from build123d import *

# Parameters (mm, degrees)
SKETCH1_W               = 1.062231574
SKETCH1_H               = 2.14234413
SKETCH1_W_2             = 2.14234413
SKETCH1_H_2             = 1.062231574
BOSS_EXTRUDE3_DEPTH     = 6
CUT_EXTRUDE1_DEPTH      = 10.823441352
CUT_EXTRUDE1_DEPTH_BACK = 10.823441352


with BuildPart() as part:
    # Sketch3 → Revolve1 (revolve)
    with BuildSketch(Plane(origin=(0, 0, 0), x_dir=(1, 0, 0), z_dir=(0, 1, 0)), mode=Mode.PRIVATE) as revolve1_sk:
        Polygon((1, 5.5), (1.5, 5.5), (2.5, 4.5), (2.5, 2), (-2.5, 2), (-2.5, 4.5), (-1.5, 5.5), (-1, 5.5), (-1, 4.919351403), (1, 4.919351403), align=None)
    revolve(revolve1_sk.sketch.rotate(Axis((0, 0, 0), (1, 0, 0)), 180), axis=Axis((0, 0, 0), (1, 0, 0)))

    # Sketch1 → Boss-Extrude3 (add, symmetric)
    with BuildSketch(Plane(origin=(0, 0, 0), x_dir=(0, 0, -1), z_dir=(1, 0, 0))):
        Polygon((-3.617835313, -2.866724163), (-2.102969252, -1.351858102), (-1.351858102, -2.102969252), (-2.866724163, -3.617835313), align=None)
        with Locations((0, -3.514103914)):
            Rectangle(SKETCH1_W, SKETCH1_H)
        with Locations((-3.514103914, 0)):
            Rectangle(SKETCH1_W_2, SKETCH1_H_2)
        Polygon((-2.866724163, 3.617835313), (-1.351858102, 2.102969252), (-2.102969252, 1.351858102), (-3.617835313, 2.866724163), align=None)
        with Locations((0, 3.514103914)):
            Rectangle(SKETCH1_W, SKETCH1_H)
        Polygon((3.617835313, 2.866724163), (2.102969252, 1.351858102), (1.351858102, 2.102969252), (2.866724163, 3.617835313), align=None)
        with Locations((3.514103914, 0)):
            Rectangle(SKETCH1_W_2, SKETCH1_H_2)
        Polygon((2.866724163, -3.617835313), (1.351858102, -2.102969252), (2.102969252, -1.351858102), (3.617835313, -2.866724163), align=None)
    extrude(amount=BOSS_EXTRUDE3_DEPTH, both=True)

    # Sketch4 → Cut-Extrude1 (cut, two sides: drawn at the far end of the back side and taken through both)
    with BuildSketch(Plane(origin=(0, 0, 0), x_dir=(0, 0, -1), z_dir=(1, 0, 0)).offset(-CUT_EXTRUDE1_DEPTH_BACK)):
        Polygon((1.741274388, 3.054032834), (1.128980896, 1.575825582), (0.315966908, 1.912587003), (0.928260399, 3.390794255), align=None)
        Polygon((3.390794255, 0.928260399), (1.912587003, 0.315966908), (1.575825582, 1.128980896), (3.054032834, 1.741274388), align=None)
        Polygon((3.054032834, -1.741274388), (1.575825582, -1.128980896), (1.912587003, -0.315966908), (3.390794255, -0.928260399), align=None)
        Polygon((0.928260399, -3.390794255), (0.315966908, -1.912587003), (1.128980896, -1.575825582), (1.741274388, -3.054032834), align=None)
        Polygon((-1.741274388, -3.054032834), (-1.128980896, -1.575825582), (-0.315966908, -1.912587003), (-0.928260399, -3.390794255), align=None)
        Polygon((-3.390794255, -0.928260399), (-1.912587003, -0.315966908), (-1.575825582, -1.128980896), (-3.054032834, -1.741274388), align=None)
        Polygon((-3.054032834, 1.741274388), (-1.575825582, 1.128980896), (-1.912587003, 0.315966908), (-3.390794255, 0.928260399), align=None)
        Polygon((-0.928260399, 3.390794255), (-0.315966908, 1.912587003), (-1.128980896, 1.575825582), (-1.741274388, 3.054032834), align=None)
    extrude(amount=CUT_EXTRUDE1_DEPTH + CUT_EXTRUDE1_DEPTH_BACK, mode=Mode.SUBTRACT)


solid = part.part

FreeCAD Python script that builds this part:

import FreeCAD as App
import Part
import Sketcher
Q = App.Units.Quantity

doc = App.newDocument("Part")
body = doc.addObject("PartDesign::Body", "Body")

# Sketch on XZ plane
sketch1 = body.newObject("Sketcher::SketchObject", "Sketch")
sketch1.AttachmentSupport = (doc.getObject("XZ_Plane"), [""])
sketch1.MapMode = "FlatFace"
sketch1.addGeometry(Part.LineSegment(App.Vector(1.5, -5.5, 0), App.Vector(1, -5.5, 0)), False)
sketch1.addGeometry(Part.LineSegment(App.Vector(1, -5.5, 0), App.Vector(1, -4.919351, 0)), False)
sketch1.addGeometry(Part.LineSegment(App.Vector(1, -4.919351, 0), App.Vector(-1, -4.919351, 0)), False)
sketch1.addGeometry(Part.LineSegment(App.Vector(-1, -4.919351, 0), App.Vector(-1, -5.5, 0)), False)
sketch1.addGeometry(Part.LineSegment(App.Vector(-1, -5.5, 0), App.Vector(-1.5, -5.5, 0)), False)
sketch1.addGeometry(Part.LineSegment(App.Vector(-1.5, -5.5, 0), App.Vector(-2.5, -4.5, 0)), False)
sketch1.addGeometry(Part.LineSegment(App.Vector(-2.5, -4.5, 0), App.Vector(-2.5, -2, 0)), False)
sketch1.addGeometry(Part.LineSegment(App.Vector(-2.5, -2, 0), App.Vector(2.5, -2, 0)), False)
sketch1.addGeometry(Part.LineSegment(App.Vector(2.5, -2, 0), App.Vector(2.5, -4.5, 0)), False)
sketch1.addGeometry(Part.LineSegment(App.Vector(2.5, -4.5, 0), App.Vector(1.5, -5.5, 0)), False)
sketch1.addConstraint(Sketcher.Constraint("Coincident", 0, 2, 1, 1))
sketch1.addConstraint(Sketcher.Constraint("Coincident", 1, 2, 2, 1))
sketch1.addConstraint(Sketcher.Constraint("Coincident", 2, 2, 3, 1))
sketch1.addConstraint(Sketcher.Constraint("Coincident", 3, 2, 4, 1))
sketch1.addConstraint(Sketcher.Constraint("Coincident", 4, 2, 5, 1))
sketch1.addConstraint(Sketcher.Constraint("Coincident", 5, 2, 6, 1))
sketch1.addConstraint(Sketcher.Constraint("Coincident", 6, 2, 7, 1))
sketch1.addConstraint(Sketcher.Constraint("Coincident", 7, 2, 8, 1))
sketch1.addConstraint(Sketcher.Constraint("Coincident", 8, 2, 9, 1))
sketch1.addConstraint(Sketcher.Constraint("Coincident", 9, 2, 0, 1))
sketch1.addConstraint(Sketcher.Constraint("Horizontal", 0))
sketch1.addConstraint(Sketcher.Constraint("Vertical", 1))
sketch1.addConstraint(Sketcher.Constraint("Horizontal", 2))
sketch1.addConstraint(Sketcher.Constraint("Vertical", 3))
sketch1.addConstraint(Sketcher.Constraint("Horizontal", 4))
sketch1.addConstraint(Sketcher.Constraint("Vertical", 6))
sketch1.addConstraint(Sketcher.Constraint("Horizontal", 7))
sketch1.addConstraint(Sketcher.Constraint("Vertical", 8))
sketch1.addConstraint(Sketcher.Constraint("Symmetric", 0, 2, 3, 2, -2))
sketch1.addConstraint(Sketcher.Constraint("Symmetric", 5, 2, 8, 2, -2))
sketch1.addConstraint(Sketcher.Constraint("Perpendicular", 5, 9))
sketch1.addConstraint(Sketcher.Constraint("Equal", 0, 4))
sketch1.addConstraint(Sketcher.Constraint("DistanceX", 2, 2, 2, 1, 2.0))
sketch1.addConstraint(Sketcher.Constraint("DistanceX", 7, 1, 7, 2, 5.0))
sketch1.addConstraint(Sketcher.Constraint("DistanceX", 0, 2, 0, 1, 0.5))
sketch1.addConstraint(Sketcher.Constraint("DistanceY", 6, 1, 6, 2, 2.5))
sketch1.addConstraint(Sketcher.Constraint("DistanceY", 6, 2, -1, 1, 2.0))
sketch1.addConstraint(Sketcher.Constraint("DistanceY", 1, 1, 1, 2, 0.580649))
revolution = body.newObject("PartDesign::Revolution", "Revolution")
revolution.Profile = sketch1
revolution.ReferenceAxis = (sketch1, ["H_Axis"])
revolution.Angle = 360

# Sketch on YZ plane
sketch2 = body.newObject("Sketcher::SketchObject", "Sketch001")
sketch2.AttachmentSupport = (doc.getObject("YZ_Plane"), [""])
sketch2.MapMode = "FlatFace"
sketch2.addGeometry(Part.LineSegment(App.Vector(-1.351858, 2.102969, 0), App.Vector(-2.866724, 3.617835, 0)), False)
sketch2.addGeometry(Part.LineSegment(App.Vector(-2.866724, 3.617835, 0), App.Vector(-3.617835, 2.866724, 0)), False)
sketch2.addGeometry(Part.LineSegment(App.Vector(-3.617835, 2.866724, 0), App.Vector(-2.102969, 1.351858, 0)), False)
sketch2.addGeometry(Part.LineSegment(App.Vector(-2.102969, 1.351858, 0), App.Vector(-1.351858, 2.102969, 0)), False)
sketch2.addGeometry(Part.LineSegment(App.Vector(-2.442932, 0.531116, 0), App.Vector(-4.585276, 0.531116, 0)), False)
sketch2.addGeometry(Part.LineSegment(App.Vector(-4.585276, 0.531116, 0), App.Vector(-4.585276, -0.531116, 0)), False)
sketch2.addGeometry(Part.LineSegment(App.Vector(-4.585276, -0.531116, 0), App.Vector(-2.442932, -0.531116, 0)), False)
sketch2.addGeometry(Part.LineSegment(App.Vector(-2.442932, -0.531116, 0), App.Vector(-2.442932, 0.531116, 0)), False)
sketch2.addGeometry(Part.LineSegment(App.Vector(0.531116, 4.585276, 0), App.Vector(-0.531116, 4.585276, 0)), False)
sketch2.addGeometry(Part.LineSegment(App.Vector(-0.531116, 4.585276, 0), App.Vector(-0.531116, 2.442932, 0)), False)
sketch2.addGeometry(Part.LineSegment(App.Vector(-0.531116, 2.442932, 0), App.Vector(0.531116, 2.442932, 0)), False)
sketch2.addGeometry(Part.LineSegment(App.Vector(0.531116, 2.442932, 0), App.Vector(0.531116, 4.585276, 0)), False)
sketch2.addGeometry(Part.LineSegment(App.Vector(2.102969, 1.351858, 0), App.Vector(3.617835, 2.866724, 0)), False)
sketch2.addGeometry(Part.LineSegment(App.Vector(3.617835, 2.866724, 0), App.Vector(2.866724, 3.617835, 0)), False)
sketch2.addGeometry(Part.LineSegment(App.Vector(2.866724, 3.617835, 0), App.Vector(1.351858, 2.102969, 0)), False)
sketch2.addGeometry(Part.LineSegment(App.Vector(1.351858, 2.102969, 0), App.Vector(2.102969, 1.351858, 0)), False)
sketch2.addGeometry(Part.LineSegment(App.Vector(4.585276, 0.531116, 0), App.Vector(2.442932, 0.531116, 0)), False)
sketch2.addGeometry(Part.LineSegment(App.Vector(2.442932, 0.531116, 0), App.Vector(2.442932, -0.531116, 0)), False)
sketch2.addGeometry(Part.LineSegment(App.Vector(2.442932, -0.531116, 0), App.Vector(4.585276, -0.531116, 0)), False)
sketch2.addGeometry(Part.LineSegment(App.Vector(4.585276, -0.531116, 0), App.Vector(4.585276, 0.531116, 0)), False)
sketch2.addGeometry(Part.LineSegment(App.Vector(1.351858, -2.102969, 0), App.Vector(2.866724, -3.617835, 0)), False)
sketch2.addGeometry(Part.LineSegment(App.Vector(2.866724, -3.617835, 0), App.Vector(3.617835, -2.866724, 0)), False)
sketch2.addGeometry(Part.LineSegment(App.Vector(3.617835, -2.866724, 0), App.Vector(2.102969, -1.351858, 0)), False)
sketch2.addGeometry(Part.LineSegment(App.Vector(2.102969, -1.351858, 0), App.Vector(1.351858, -2.102969, 0)), False)
sketch2.addGeometry(Part.LineSegment(App.Vector(0.531116, -2.442932, 0), App.Vector(-0.531116, -2.442932, 0)), False)
sketch2.addGeometry(Part.LineSegment(App.Vector(-0.531116, -2.442932, 0), App.Vector(-0.531116, -4.585276, 0)), False)
sketch2.addGeometry(Part.LineSegment(App.Vector(-0.531116, -4.585276, 0), App.Vector(0.531116, -4.585276, 0)), False)
sketch2.addGeometry(Part.LineSegment(App.Vector(0.531116, -4.585276, 0), App.Vector(0.531116, -2.442932, 0)), False)
sketch2.addGeometry(Part.LineSegment(App.Vector(-2.102969, -1.351858, 0), App.Vector(-3.617835, -2.866724, 0)), False)
sketch2.addGeometry(Part.LineSegment(App.Vector(-3.617835, -2.866724, 0), App.Vector(-2.866724, -3.617835, 0)), False)
sketch2.addGeometry(Part.LineSegment(App.Vector(-2.866724, -3.617835, 0), App.Vector(-1.351858, -2.102969, 0)), False)
sketch2.addGeometry(Part.LineSegment(App.Vector(-1.351858, -2.102969, 0), App.Vector(-2.102969, -1.351858, 0)), False)
sketch2.addConstraint(Sketcher.Constraint("Coincident", 0, 2, 1, 1))
sketch2.addConstraint(Sketcher.Constraint("Coincident", 1, 2, 2, 1))
sketch2.addConstraint(Sketcher.Constraint("Coincident", 2, 2, 3, 1))
sketch2.addConstraint(Sketcher.Constraint("Coincident", 3, 2, 0, 1))
sketch2.addConstraint(Sketcher.Constraint("Coincident", 4, 2, 5, 1))
sketch2.addConstraint(Sketcher.Constraint("Coincident", 5, 2, 6, 1))
sketch2.addConstraint(Sketcher.Constraint("Coincident", 6, 2, 7, 1))
sketch2.addConstraint(Sketcher.Constraint("Coincident", 7, 2, 4, 1))
sketch2.addConstraint(Sketcher.Constraint("Coincident", 8, 2, 9, 1))
sketch2.addConstraint(Sketcher.Constraint("Coincident", 9, 2, 10, 1))
sketch2.addConstraint(Sketcher.Constraint("Coincident", 10, 2, 11, 1))
sketch2.addConstraint(Sketcher.Constraint("Coincident", 11, 2, 8, 1))
sketch2.addConstraint(Sketcher.Constraint("Coincident", 12, 2, 13, 1))
sketch2.addConstraint(Sketcher.Constraint("Coincident", 13, 2, 14, 1))
sketch2.addConstraint(Sketcher.Constraint("Coincident", 14, 2, 15, 1))
sketch2.addConstraint(Sketcher.Constraint("Coincident", 15, 2, 12, 1))
sketch2.addConstraint(Sketcher.Constraint("Coincident", 16, 2, 17, 1))
sketch2.addConstraint(Sketcher.Constraint("Coincident", 17, 2, 18, 1))
sketch2.addConstraint(Sketcher.Constraint("Coincident", 18, 2, 19, 1))
sketch2.addConstraint(Sketcher.Constraint("Coincident", 19, 2, 16, 1))
sketch2.addConstraint(Sketcher.Constraint("Coincident", 20, 2, 21, 1))
sketch2.addConstraint(Sketcher.Constraint("Coincident", 21, 2, 22, 1))
sketch2.addConstraint(Sketcher.Constraint("Coincident", 22, 2, 23, 1))
sketch2.addConstraint(Sketcher.Constraint("Coincident", 23, 2, 20, 1))
sketch2.addConstraint(Sketcher.Constraint("Coincident", 24, 2, 25, 1))
sketch2.addConstraint(Sketcher.Constraint("Coincident", 25, 2, 26, 1))
sketch2.addConstraint(Sketcher.Constraint("Coincident", 26, 2, 27, 1))
sketch2.addConstraint(Sketcher.Constraint("Coincident", 27, 2, 24, 1))
sketch2.addConstraint(Sketcher.Constraint("Coincident", 28, 2, 29, 1))
sketch2.addConstraint(Sketcher.Constraint("Coincident", 29, 2, 30, 1))
sketch2.addConstraint(Sketcher.Constraint("Coincident", 30, 2, 31, 1))
sketch2.addConstraint(Sketcher.Constraint("Coincident", 31, 2, 28, 1))
sketch2.addConstraint(Sketcher.Constraint("Horizontal", 4))
sketch2.addConstraint(Sketcher.Constraint("Vertical", 5))
sketch2.addConstraint(Sketcher.Constraint("Horizontal", 6))
sketch2.addConstraint(Sketcher.Constraint("Vertical", 7))
sketch2.addConstraint(Sketcher.Constraint("Horizontal", 8))
sketch2.addConstraint(Sketcher.Constraint("Vertical", 9))
sketch2.addConstraint(Sketcher.Constraint("Horizontal", 10))
sketch2.addConstraint(Sketcher.Constraint("Vertical", 11))
sketch2.addConstraint(Sketcher.Constraint("Horizontal", 16))
sketch2.addConstraint(Sketcher.Constraint("Vertical", 17))
sketch2.addConstraint(Sketcher.Constraint("Horizontal", 18))
sketch2.addConstraint(Sketcher.Constraint("Vertical", 19))
sketch2.addConstraint(Sketcher.Constraint("Horizontal", 24))
sketch2.addConstraint(Sketcher.Constraint("Vertical", 25))
sketch2.addConstraint(Sketcher.Constraint("Horizontal", 26))
sketch2.addConstraint(Sketcher.Constraint("Vertical", 27))
sketch2.addConstraint(Sketcher.Constraint("Symmetric", 6, 2, 16, 2, -1, 1))
sketch2.addConstraint(Sketcher.Constraint("Symmetric", 4, 2, 18, 2, -1, 1))
sketch2.addConstraint(Sketcher.Constraint("Symmetric", 0, 2, 20, 2, -1, 1))
sketch2.addConstraint(Sketcher.Constraint("Symmetric", 1, 2, 21, 2, -1, 1))
sketch2.addConstraint(Sketcher.Constraint("Symmetric", 2, 2, 22, 2, -1, 1))
sketch2.addConstraint(Sketcher.Constraint("Symmetric", 3, 2, 23, 2, -1, 1))
sketch2.addConstraint(Sketcher.Constraint("Symmetric", 10, 2, 24, 2, -1, 1))
sketch2.addConstraint(Sketcher.Constraint("Symmetric", 8, 2, 26, 2, -1, 1))
sketch2.addConstraint(Sketcher.Constraint("Symmetric", 12, 2, 28, 2, -1, 1))
sketch2.addConstraint(Sketcher.Constraint("Symmetric", 13, 2, 29, 2, -1, 1))
sketch2.addConstraint(Sketcher.Constraint("Symmetric", 14, 2, 30, 2, -1, 1))
sketch2.addConstraint(Sketcher.Constraint("Symmetric", 15, 2, 31, 2, -1, 1))
sketch2.addConstraint(Sketcher.Constraint("Symmetric", 1, 2, 12, 2, -2))
sketch2.addConstraint(Sketcher.Constraint("Symmetric", 0, 2, 13, 2, -2))
sketch2.addConstraint(Sketcher.Constraint("Symmetric", 3, 2, 14, 2, -2))
sketch2.addConstraint(Sketcher.Constraint("Symmetric", 2, 2, 15, 2, -2))
sketch2.addConstraint(Sketcher.Constraint("Perpendicular", 0, 1))
sketch2.addConstraint(Sketcher.Constraint("Perpendicular", 1, 2))
sketch2.addConstraint(Sketcher.Constraint("Perpendicular", 2, 3))
sketch2.addConstraint(Sketcher.Constraint("Parallel", 3, 12))
sketch2.addConstraint(Sketcher.Constraint("Horizontal", 7, 2, 16, 2))
sketch2.addConstraint(Sketcher.Constraint("Vertical", 9, 2, 24, 2))
sketch2.addConstraint(Sketcher.Constraint("Equal", 26, 5))
sketch2.addConstraint(Sketcher.Constraint("Equal", 18, 9))
sketch2.addConstraint(Sketcher.Constraint("DistanceX", 8, 2, 8, 1, 1.062232))
sketch2.addConstraint(Sketcher.Constraint("Distance", 1, 1.062232))
sketch2.addConstraint(Sketcher.Constraint("DistanceX", 4, 2, 4, 1, 2.142344))
sketch2.addConstraint(Sketcher.Constraint("DistanceX", 2, 2, -1, 1, 2.102969))
sketch2.addConstraint(Sketcher.Constraint("DistanceY", -1, 1, 2, 2, 1.351858))
sketch2.addConstraint(Sketcher.Constraint("DistanceX", 6, 2, -1, 1, 2.442932))
sketch2.addConstraint(Sketcher.Constraint("DistanceY", -1, 1, 9, 2, 2.442932))
sketch2.addConstraint(Sketcher.Constraint("DistanceX", 4, 2, 1, 2, 0.967441))
pad1 = body.newObject("PartDesign::Pad", "Pad")
pad1.Profile = sketch2
pad1.Length = 12
pad1.Midplane = True

# Sketch on YZ plane
sketch3 = body.newObject("Sketcher::SketchObject", "Sketch002")
sketch3.AttachmentSupport = (doc.getObject("YZ_Plane"), [""])
sketch3.MapMode = "FlatFace"
sketch3.addGeometry(Part.LineSegment(App.Vector(1.575826, -1.128981, 0), App.Vector(3.054033, -1.741274, 0)), False)
sketch3.addGeometry(Part.LineSegment(App.Vector(3.054033, -1.741274, 0), App.Vector(3.390794, -0.92826, 0)), False)
sketch3.addGeometry(Part.LineSegment(App.Vector(3.390794, -0.92826, 0), App.Vector(1.912587, -0.315967, 0)), False)
sketch3.addGeometry(Part.LineSegment(App.Vector(1.912587, -0.315967, 0), App.Vector(1.575826, -1.128981, 0)), False)
sketch3.addGeometry(Part.LineSegment(App.Vector(0.315967, -1.912587, 0), App.Vector(0.92826, -3.390794, 0)), False)
sketch3.addGeometry(Part.LineSegment(App.Vector(0.92826, -3.390794, 0), App.Vector(1.741274, -3.054033, 0)), False)
sketch3.addGeometry(Part.LineSegment(App.Vector(1.741274, -3.054033, 0), App.Vector(1.128981, -1.575826, 0)), False)
sketch3.addGeometry(Part.LineSegment(App.Vector(1.128981, -1.575826, 0), App.Vector(0.315967, -1.912587, 0)), False)
sketch3.addGeometry(Part.LineSegment(App.Vector(-1.128981, -1.575826, 0), App.Vector(-1.741274, -3.054033, 0)), False)
sketch3.addGeometry(Part.LineSegment(App.Vector(-1.741274, -3.054033, 0), App.Vector(-0.92826, -3.390794, 0)), False)
sketch3.addGeometry(Part.LineSegment(App.Vector(-0.92826, -3.390794, 0), App.Vector(-0.315967, -1.912587, 0)), False)
sketch3.addGeometry(Part.LineSegment(App.Vector(-0.315967, -1.912587, 0), App.Vector(-1.128981, -1.575826, 0)), False)
sketch3.addGeometry(Part.LineSegment(App.Vector(-1.912587, -0.315967, 0), App.Vector(-3.390794, -0.92826, 0)), False)
sketch3.addGeometry(Part.LineSegment(App.Vector(-3.390794, -0.92826, 0), App.Vector(-3.054033, -1.741274, 0)), False)
sketch3.addGeometry(Part.LineSegment(App.Vector(-3.054033, -1.741274, 0), App.Vector(-1.575826, -1.128981, 0)), False)
sketch3.addGeometry(Part.LineSegment(App.Vector(-1.575826, -1.128981, 0), App.Vector(-1.912587, -0.315967, 0)), False)
sketch3.addGeometry(Part.LineSegment(App.Vector(-1.575826, 1.128981, 0), App.Vector(-3.054033, 1.741274, 0)), False)
sketch3.addGeometry(Part.LineSegment(App.Vector(-3.054033, 1.741274, 0), App.Vector(-3.390794, 0.92826, 0)), False)
sketch3.addGeometry(Part.LineSegment(App.Vector(-3.390794, 0.92826, 0), App.Vector(-1.912587, 0.315967, 0)), False)
sketch3.addGeometry(Part.LineSegment(App.Vector(-1.912587, 0.315967, 0), App.Vector(-1.575826, 1.128981, 0)), False)
sketch3.addGeometry(Part.LineSegment(App.Vector(-0.315967, 1.912587, 0), App.Vector(-0.92826, 3.390794, 0)), False)
sketch3.addGeometry(Part.LineSegment(App.Vector(-0.92826, 3.390794, 0), App.Vector(-1.741274, 3.054033, 0)), False)
sketch3.addGeometry(Part.LineSegment(App.Vector(-1.741274, 3.054033, 0), App.Vector(-1.128981, 1.575826, 0)), False)
sketch3.addGeometry(Part.LineSegment(App.Vector(-1.128981, 1.575826, 0), App.Vector(-0.315967, 1.912587, 0)), False)
sketch3.addGeometry(Part.LineSegment(App.Vector(1.128981, 1.575826, 0), App.Vector(1.741274, 3.054033, 0)), False)
sketch3.addGeometry(Part.LineSegment(App.Vector(1.741274, 3.054033, 0), App.Vector(0.92826, 3.390794, 0)), False)
sketch3.addGeometry(Part.LineSegment(App.Vector(0.92826, 3.390794, 0), App.Vector(0.315967, 1.912587, 0)), False)
sketch3.addGeometry(Part.LineSegment(App.Vector(0.315967, 1.912587, 0), App.Vector(1.128981, 1.575826, 0)), False)
sketch3.addGeometry(Part.LineSegment(App.Vector(1.912587, 0.315967, 0), App.Vector(3.390794, 0.92826, 0)), False)
sketch3.addGeometry(Part.LineSegment(App.Vector(3.390794, 0.92826, 0), App.Vector(3.054033, 1.741274, 0)), False)
sketch3.addGeometry(Part.LineSegment(App.Vector(3.054033, 1.741274, 0), App.Vector(1.575826, 1.128981, 0)), False)
sketch3.addGeometry(Part.LineSegment(App.Vector(1.575826, 1.128981, 0), App.Vector(1.912587, 0.315967, 0)), False)
sketch3.addConstraint(Sketcher.Constraint("Coincident", 0, 2, 1, 1))
sketch3.addConstraint(Sketcher.Constraint("Coincident", 1, 2, 2, 1))
sketch3.addConstraint(Sketcher.Constraint("Coincident", 2, 2, 3, 1))
sketch3.addConstraint(Sketcher.Constraint("Coincident", 3, 2, 0, 1))
sketch3.addConstraint(Sketcher.Constraint("Coincident", 4, 2, 5, 1))
sketch3.addConstraint(Sketcher.Constraint("Coincident", 5, 2, 6, 1))
sketch3.addConstraint(Sketcher.Constraint("Coincident", 6, 2, 7, 1))
sketch3.addConstraint(Sketcher.Constraint("Coincident", 7, 2, 4, 1))
sketch3.addConstraint(Sketcher.Constraint("Coincident", 8, 2, 9, 1))
sketch3.addConstraint(Sketcher.Constraint("Coincident", 9, 2, 10, 1))
sketch3.addConstraint(Sketcher.Constraint("Coincident", 10, 2, 11, 1))
sketch3.addConstraint(Sketcher.Constraint("Coincident", 11, 2, 8, 1))
sketch3.addConstraint(Sketcher.Constraint("Coincident", 12, 2, 13, 1))
sketch3.addConstraint(Sketcher.Constraint("Coincident", 13, 2, 14, 1))
sketch3.addConstraint(Sketcher.Constraint("Coincident", 14, 2, 15, 1))
sketch3.addConstraint(Sketcher.Constraint("Coincident", 15, 2, 12, 1))
sketch3.addConstraint(Sketcher.Constraint("Coincident", 16, 2, 17, 1))
sketch3.addConstraint(Sketcher.Constraint("Coincident", 17, 2, 18, 1))
sketch3.addConstraint(Sketcher.Constraint("Coincident", 18, 2, 19, 1))
sketch3.addConstraint(Sketcher.Constraint("Coincident", 19, 2, 16, 1))
sketch3.addConstraint(Sketcher.Constraint("Coincident", 20, 2, 21, 1))
sketch3.addConstraint(Sketcher.Constraint("Coincident", 21, 2, 22, 1))
sketch3.addConstraint(Sketcher.Constraint("Coincident", 22, 2, 23, 1))
sketch3.addConstraint(Sketcher.Constraint("Coincident", 23, 2, 20, 1))
sketch3.addConstraint(Sketcher.Constraint("Coincident", 24, 2, 25, 1))
sketch3.addConstraint(Sketcher.Constraint("Coincident", 25, 2, 26, 1))
sketch3.addConstraint(Sketcher.Constraint("Coincident", 26, 2, 27, 1))
sketch3.addConstraint(Sketcher.Constraint("Coincident", 27, 2, 24, 1))
sketch3.addConstraint(Sketcher.Constraint("Coincident", 28, 2, 29, 1))
sketch3.addConstraint(Sketcher.Constraint("Coincident", 29, 2, 30, 1))
sketch3.addConstraint(Sketcher.Constraint("Coincident", 30, 2, 31, 1))
sketch3.addConstraint(Sketcher.Constraint("Coincident", 31, 2, 28, 1))
sketch3.addConstraint(Sketcher.Constraint("Symmetric", 0, 2, 16, 2, -1, 1))
sketch3.addConstraint(Sketcher.Constraint("Symmetric", 1, 2, 17, 2, -1, 1))
sketch3.addConstraint(Sketcher.Constraint("Symmetric", 2, 2, 18, 2, -1, 1))
sketch3.addConstraint(Sketcher.Constraint("Symmetric", 3, 2, 19, 2, -1, 1))
sketch3.addConstraint(Sketcher.Constraint("Symmetric", 4, 2, 20, 2, -1, 1))
sketch3.addConstraint(Sketcher.Constraint("Symmetric", 5, 2, 21, 2, -1, 1))
sketch3.addConstraint(Sketcher.Constraint("Symmetric", 6, 2, 22, 2, -1, 1))
sketch3.addConstraint(Sketcher.Constraint("Symmetric", 7, 2, 23, 2, -1, 1))
sketch3.addConstraint(Sketcher.Constraint("Symmetric", 8, 2, 24, 2, -1, 1))
sketch3.addConstraint(Sketcher.Constraint("Symmetric", 9, 2, 25, 2, -1, 1))
sketch3.addConstraint(Sketcher.Constraint("Symmetric", 10, 2, 26, 2, -1, 1))
sketch3.addConstraint(Sketcher.Constraint("Symmetric", 11, 2, 27, 2, -1, 1))
sketch3.addConstraint(Sketcher.Constraint("Symmetric", 12, 2, 28, 2, -1, 1))
sketch3.addConstraint(Sketcher.Constraint("Symmetric", 13, 2, 29, 2, -1, 1))
sketch3.addConstraint(Sketcher.Constraint("Symmetric", 14, 2, 30, 2, -1, 1))
sketch3.addConstraint(Sketcher.Constraint("Symmetric", 15, 2, 31, 2, -1, 1))
sketch3.addConstraint(Sketcher.Constraint("Symmetric", 5, 2, 8, 2, -2))
sketch3.addConstraint(Sketcher.Constraint("Symmetric", 4, 2, 9, 2, -2))
sketch3.addConstraint(Sketcher.Constraint("Symmetric", 7, 2, 10, 2, -2))
sketch3.addConstraint(Sketcher.Constraint("Symmetric", 6, 2, 11, 2, -2))
sketch3.addConstraint(Sketcher.Constraint("Symmetric", 1, 2, 12, 2, -2))
sketch3.addConstraint(Sketcher.Constraint("Symmetric", 0, 2, 13, 2, -2))
sketch3.addConstraint(Sketcher.Constraint("Symmetric", 3, 2, 14, 2, -2))
sketch3.addConstraint(Sketcher.Constraint("Symmetric", 2, 2, 15, 2, -2))
sketch3.addConstraint(Sketcher.Constraint("Perpendicular", 0, 1))
sketch3.addConstraint(Sketcher.Constraint("Perpendicular", 1, 2))
sketch3.addConstraint(Sketcher.Constraint("Perpendicular", 2, 3))
sketch3.addConstraint(Sketcher.Constraint("Perpendicular", 4, 5))
sketch3.addConstraint(Sketcher.Constraint("Perpendicular", 5, 6))
sketch3.addConstraint(Sketcher.Constraint("Perpendicular", 6, 7))
sketch3.addConstraint(Sketcher.Constraint("Parallel", 3, 8))
sketch3.addConstraint(Sketcher.Constraint("Equal", 2, 4))
sketch3.addConstraint(Sketcher.Constraint("Equal", 3, 5))
sketch3.addConstraint(Sketcher.Constraint("Angle", 0, Q("-22.5 deg")))
sketch3.addConstraint(Sketcher.Constraint("Distance", 0, 1.6))
sketch3.addConstraint(Sketcher.Constraint("Distance", 1, 0.88))
sketch3.addConstraint(Sketcher.Constraint("DistanceY", 2, 2, 24, 2, 3.37))
sketch3.addConstraint(Sketcher.Constraint("DistanceX", 8, 2, 3, 2, 3.3171))
sketch3.addConstraint(Sketcher.Constraint("DistanceY", 1, 2, -1, 1, 0.92826))
sketch3.addConstraint(Sketcher.Constraint("DistanceX", -1, 1, 4, 2, 0.92826))
pocket1 = body.newObject("PartDesign::Pocket", "Pocket")
pocket1.Profile = sketch3
pocket1.Type = "ThroughAll"
pocket1.Midplane = True

doc.recompute()
